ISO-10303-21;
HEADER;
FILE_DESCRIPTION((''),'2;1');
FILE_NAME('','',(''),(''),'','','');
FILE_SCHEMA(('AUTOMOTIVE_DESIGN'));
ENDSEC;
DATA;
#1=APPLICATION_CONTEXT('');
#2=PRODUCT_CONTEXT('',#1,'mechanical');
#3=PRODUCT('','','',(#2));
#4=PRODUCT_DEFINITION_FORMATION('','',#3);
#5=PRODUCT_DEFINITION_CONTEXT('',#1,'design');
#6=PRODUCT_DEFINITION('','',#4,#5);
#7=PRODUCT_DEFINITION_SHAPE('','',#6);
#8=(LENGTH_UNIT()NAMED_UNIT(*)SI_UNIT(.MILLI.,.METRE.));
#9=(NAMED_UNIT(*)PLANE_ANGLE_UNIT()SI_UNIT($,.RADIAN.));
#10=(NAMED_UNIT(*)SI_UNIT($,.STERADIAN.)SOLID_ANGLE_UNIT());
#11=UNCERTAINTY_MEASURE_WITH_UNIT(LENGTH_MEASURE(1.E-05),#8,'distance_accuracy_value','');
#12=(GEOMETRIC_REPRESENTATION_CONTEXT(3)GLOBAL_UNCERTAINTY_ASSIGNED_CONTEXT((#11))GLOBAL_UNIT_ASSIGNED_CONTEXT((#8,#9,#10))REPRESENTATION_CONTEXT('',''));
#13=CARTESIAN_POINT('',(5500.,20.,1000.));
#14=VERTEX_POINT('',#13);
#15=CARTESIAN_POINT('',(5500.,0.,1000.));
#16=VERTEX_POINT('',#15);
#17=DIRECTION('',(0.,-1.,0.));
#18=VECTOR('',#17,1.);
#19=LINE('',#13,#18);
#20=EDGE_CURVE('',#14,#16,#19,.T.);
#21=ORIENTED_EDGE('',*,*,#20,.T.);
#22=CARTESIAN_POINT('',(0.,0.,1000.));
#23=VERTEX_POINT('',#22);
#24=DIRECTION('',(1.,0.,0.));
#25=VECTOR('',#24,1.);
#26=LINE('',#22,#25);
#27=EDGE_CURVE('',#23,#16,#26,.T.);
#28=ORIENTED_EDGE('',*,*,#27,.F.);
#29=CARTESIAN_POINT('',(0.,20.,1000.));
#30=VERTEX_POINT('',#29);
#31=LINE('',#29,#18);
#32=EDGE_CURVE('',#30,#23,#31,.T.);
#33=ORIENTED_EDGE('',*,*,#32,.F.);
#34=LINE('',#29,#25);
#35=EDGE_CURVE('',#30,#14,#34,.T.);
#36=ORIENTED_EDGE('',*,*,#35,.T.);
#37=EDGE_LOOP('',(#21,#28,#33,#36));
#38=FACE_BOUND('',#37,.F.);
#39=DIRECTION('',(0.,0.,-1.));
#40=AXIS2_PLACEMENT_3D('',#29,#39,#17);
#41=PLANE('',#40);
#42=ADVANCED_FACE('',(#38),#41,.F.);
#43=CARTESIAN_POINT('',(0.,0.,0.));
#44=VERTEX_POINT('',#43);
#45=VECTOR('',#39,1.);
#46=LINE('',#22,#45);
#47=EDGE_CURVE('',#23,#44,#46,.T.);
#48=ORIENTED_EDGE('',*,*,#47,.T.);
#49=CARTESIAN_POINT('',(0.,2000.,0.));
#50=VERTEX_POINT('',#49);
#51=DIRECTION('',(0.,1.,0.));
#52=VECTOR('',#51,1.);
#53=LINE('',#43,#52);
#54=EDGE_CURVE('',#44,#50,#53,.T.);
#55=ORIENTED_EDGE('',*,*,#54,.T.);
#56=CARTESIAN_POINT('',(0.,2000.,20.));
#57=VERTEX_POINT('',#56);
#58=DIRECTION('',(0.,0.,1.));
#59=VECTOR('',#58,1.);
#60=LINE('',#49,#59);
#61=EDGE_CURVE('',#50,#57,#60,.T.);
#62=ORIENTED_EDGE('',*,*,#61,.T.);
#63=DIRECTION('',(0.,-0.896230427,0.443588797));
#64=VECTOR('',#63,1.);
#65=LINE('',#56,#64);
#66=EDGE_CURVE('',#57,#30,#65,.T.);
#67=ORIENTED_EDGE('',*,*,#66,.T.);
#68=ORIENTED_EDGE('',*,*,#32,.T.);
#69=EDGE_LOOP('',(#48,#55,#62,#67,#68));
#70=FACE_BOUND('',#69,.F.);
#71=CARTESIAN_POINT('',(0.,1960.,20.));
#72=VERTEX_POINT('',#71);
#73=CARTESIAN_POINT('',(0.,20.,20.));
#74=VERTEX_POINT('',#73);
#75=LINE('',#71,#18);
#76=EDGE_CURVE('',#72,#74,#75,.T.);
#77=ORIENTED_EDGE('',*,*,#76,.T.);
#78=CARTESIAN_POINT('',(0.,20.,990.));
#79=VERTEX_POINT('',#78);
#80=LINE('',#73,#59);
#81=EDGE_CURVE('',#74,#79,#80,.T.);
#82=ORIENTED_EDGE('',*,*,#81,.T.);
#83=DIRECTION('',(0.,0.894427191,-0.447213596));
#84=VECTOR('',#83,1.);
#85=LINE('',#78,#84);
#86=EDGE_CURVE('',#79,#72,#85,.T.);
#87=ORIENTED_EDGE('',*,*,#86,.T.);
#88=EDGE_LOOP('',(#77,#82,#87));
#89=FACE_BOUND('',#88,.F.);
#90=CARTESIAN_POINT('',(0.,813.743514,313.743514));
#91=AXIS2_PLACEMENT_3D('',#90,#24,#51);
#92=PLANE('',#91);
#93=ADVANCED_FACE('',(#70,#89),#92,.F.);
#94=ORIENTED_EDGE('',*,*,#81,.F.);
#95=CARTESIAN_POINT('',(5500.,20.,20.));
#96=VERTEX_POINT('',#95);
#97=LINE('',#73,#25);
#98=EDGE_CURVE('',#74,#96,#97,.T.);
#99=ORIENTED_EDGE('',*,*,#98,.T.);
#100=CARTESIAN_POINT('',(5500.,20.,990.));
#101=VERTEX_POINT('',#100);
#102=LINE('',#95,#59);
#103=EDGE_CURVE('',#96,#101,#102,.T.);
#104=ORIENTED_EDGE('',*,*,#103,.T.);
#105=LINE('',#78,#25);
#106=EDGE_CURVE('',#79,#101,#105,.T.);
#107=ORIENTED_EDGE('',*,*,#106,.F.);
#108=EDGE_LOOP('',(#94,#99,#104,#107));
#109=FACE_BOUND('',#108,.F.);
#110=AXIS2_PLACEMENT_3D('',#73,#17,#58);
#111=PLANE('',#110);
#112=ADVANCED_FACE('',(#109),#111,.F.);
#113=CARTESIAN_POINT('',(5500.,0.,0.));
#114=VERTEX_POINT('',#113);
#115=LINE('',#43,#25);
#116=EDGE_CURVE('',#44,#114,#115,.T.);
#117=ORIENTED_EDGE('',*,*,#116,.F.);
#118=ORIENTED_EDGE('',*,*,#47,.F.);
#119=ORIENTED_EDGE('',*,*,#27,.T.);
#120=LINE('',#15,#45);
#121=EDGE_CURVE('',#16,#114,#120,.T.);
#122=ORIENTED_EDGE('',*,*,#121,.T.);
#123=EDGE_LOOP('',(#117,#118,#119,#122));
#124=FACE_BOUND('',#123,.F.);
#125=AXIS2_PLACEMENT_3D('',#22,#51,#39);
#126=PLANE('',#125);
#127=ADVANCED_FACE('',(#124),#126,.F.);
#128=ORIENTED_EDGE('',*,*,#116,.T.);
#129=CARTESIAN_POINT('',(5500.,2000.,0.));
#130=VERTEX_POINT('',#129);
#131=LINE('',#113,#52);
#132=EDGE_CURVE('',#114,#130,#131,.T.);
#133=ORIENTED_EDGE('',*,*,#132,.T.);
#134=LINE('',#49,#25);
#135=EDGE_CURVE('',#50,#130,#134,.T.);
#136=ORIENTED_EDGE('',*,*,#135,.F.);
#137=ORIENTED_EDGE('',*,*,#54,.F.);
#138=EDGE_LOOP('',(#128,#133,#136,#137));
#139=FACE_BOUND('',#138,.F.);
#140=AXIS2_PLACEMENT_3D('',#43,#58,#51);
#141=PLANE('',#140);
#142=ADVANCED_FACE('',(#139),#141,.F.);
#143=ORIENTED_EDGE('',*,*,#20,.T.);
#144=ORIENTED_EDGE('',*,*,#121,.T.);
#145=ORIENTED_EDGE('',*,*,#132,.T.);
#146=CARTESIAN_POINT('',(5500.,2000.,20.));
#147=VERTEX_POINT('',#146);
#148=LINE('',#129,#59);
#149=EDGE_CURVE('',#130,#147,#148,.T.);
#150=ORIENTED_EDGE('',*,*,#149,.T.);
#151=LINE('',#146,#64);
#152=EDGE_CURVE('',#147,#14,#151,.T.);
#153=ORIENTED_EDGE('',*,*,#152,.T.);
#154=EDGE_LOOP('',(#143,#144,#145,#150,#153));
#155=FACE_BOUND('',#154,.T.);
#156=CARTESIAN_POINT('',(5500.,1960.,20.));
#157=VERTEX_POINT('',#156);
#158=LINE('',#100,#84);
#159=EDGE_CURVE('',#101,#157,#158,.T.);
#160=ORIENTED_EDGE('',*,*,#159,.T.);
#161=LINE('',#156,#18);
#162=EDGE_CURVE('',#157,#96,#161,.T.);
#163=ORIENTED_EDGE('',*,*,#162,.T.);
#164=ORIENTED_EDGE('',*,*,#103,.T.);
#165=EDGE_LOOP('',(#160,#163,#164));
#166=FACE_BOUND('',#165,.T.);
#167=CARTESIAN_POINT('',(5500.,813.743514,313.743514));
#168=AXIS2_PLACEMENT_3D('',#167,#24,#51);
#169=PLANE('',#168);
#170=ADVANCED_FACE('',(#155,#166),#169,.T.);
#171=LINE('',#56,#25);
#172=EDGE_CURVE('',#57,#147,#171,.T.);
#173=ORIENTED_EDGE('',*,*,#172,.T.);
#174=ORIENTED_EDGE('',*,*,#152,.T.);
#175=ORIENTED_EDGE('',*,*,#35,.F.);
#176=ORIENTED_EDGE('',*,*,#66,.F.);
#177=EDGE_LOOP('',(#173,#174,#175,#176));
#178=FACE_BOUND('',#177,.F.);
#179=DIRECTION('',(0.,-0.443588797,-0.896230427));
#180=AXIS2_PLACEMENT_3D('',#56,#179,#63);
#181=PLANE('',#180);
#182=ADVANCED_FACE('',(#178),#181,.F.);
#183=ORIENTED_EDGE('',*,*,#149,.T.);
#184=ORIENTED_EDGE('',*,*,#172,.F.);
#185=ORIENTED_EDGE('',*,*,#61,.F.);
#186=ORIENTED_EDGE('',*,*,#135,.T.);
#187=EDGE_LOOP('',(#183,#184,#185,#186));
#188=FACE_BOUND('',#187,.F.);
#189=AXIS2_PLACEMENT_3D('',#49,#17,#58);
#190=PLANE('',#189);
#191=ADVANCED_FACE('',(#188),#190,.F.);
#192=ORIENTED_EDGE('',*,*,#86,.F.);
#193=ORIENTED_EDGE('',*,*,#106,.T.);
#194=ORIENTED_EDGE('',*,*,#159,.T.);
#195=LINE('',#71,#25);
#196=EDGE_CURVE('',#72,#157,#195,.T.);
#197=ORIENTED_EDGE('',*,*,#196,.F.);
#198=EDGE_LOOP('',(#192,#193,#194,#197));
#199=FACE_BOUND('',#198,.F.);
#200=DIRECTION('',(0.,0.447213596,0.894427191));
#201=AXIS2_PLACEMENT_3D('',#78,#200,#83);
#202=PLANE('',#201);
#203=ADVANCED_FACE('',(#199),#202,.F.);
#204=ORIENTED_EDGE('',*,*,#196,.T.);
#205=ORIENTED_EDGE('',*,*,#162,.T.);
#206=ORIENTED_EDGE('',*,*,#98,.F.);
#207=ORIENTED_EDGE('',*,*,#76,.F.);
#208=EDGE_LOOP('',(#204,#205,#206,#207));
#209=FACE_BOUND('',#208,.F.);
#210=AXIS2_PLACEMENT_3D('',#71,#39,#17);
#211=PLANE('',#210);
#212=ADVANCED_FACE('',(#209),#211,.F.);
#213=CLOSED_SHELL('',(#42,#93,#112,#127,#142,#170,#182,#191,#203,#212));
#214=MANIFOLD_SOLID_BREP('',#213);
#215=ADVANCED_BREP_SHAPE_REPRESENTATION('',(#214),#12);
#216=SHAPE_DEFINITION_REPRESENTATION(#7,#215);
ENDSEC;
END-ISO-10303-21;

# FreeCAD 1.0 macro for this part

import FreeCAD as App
import Part
import Sketcher

V = App.Vector
Q = App.Units.Quantity

doc = App.newDocument("Part")
body = doc.addObject("PartDesign::Body", "Body")

sketch1 = body.newObject("Sketcher::SketchObject", "Sketch")
sketch1.AttachmentSupport = (doc.getObject("YZ_Plane"), [""])
sketch1.MapMode = "FlatFace"
sketch1.addGeometry([
    Part.LineSegment(V(0, 0, 0), V(2000, 0, 0)),
    Part.LineSegment(V(2000, 0, 0), V(2000, 20, 0)),
    Part.LineSegment(V(2000, 20, 0), V(20, 1000, 0)),
    Part.LineSegment(V(20, 1000, 0), V(0, 1000, 0)),
    Part.LineSegment(V(0, 1000, 0), V(0, 0, 0)),
    Part.LineSegment(V(20, 990, 0), V(1960, 20, 0)),
    Part.LineSegment(V(1960, 20, 0), V(20, 20, 0)),
    Part.LineSegment(V(20, 20, 0), V(20, 990, 0)),
], False)
sketch1.addConstraint([
    Sketcher.Constraint("Coincident", 0, 2, 1, 1),
    Sketcher.Constraint("Coincident", 1, 2, 2, 1),
    Sketcher.Constraint("Coincident", 2, 2, 3, 1),
    Sketcher.Constraint("Coincident", 3, 2, 4, 1),
    Sketcher.Constraint("Coincident", 4, 2, 0, 1),
    Sketcher.Constraint("Coincident", 5, 2, 6, 1),
    Sketcher.Constraint("Coincident", 6, 2, 7, 1),
    Sketcher.Constraint("Coincident", 7, 2, 5, 1),
    Sketcher.Constraint("Horizontal", 0),
    Sketcher.Constraint("Vertical", 1),
    Sketcher.Constraint("Horizontal", 3),
    Sketcher.Constraint("Vertical", 4),
    Sketcher.Constraint("Horizontal", 6),
    Sketcher.Constraint("Vertical", 7),
    Sketcher.Constraint("Coincident", 4, 2, -1, 1),
    Sketcher.Constraint("Horizontal", 1, 2, 5, 2),
    Sketcher.Constraint("Vertical", 2, 2, 6, 2),
    Sketcher.Constraint("Equal", 3, 1),
    Sketcher.Constraint("DistanceX", 0, 1, 0, 2, Q("2000 mm")),
    Sketcher.Constraint("DistanceX", 3, 2, 3, 1, Q("20 mm")),
    Sketcher.Constraint("DistanceX", 6, 2, 6, 1, Q("1940 mm")),
    Sketcher.Constraint("DistanceY", 4, 2, 4, 1, Q("1000 mm")),
    Sketcher.Constraint("DistanceY", 7, 1, 7, 2, Q("970 mm")),
])
pad1 = body.newObject("PartDesign::Pad", "Pad")
pad1.Profile = sketch1
pad1.Length = 5500

doc.recompute()
